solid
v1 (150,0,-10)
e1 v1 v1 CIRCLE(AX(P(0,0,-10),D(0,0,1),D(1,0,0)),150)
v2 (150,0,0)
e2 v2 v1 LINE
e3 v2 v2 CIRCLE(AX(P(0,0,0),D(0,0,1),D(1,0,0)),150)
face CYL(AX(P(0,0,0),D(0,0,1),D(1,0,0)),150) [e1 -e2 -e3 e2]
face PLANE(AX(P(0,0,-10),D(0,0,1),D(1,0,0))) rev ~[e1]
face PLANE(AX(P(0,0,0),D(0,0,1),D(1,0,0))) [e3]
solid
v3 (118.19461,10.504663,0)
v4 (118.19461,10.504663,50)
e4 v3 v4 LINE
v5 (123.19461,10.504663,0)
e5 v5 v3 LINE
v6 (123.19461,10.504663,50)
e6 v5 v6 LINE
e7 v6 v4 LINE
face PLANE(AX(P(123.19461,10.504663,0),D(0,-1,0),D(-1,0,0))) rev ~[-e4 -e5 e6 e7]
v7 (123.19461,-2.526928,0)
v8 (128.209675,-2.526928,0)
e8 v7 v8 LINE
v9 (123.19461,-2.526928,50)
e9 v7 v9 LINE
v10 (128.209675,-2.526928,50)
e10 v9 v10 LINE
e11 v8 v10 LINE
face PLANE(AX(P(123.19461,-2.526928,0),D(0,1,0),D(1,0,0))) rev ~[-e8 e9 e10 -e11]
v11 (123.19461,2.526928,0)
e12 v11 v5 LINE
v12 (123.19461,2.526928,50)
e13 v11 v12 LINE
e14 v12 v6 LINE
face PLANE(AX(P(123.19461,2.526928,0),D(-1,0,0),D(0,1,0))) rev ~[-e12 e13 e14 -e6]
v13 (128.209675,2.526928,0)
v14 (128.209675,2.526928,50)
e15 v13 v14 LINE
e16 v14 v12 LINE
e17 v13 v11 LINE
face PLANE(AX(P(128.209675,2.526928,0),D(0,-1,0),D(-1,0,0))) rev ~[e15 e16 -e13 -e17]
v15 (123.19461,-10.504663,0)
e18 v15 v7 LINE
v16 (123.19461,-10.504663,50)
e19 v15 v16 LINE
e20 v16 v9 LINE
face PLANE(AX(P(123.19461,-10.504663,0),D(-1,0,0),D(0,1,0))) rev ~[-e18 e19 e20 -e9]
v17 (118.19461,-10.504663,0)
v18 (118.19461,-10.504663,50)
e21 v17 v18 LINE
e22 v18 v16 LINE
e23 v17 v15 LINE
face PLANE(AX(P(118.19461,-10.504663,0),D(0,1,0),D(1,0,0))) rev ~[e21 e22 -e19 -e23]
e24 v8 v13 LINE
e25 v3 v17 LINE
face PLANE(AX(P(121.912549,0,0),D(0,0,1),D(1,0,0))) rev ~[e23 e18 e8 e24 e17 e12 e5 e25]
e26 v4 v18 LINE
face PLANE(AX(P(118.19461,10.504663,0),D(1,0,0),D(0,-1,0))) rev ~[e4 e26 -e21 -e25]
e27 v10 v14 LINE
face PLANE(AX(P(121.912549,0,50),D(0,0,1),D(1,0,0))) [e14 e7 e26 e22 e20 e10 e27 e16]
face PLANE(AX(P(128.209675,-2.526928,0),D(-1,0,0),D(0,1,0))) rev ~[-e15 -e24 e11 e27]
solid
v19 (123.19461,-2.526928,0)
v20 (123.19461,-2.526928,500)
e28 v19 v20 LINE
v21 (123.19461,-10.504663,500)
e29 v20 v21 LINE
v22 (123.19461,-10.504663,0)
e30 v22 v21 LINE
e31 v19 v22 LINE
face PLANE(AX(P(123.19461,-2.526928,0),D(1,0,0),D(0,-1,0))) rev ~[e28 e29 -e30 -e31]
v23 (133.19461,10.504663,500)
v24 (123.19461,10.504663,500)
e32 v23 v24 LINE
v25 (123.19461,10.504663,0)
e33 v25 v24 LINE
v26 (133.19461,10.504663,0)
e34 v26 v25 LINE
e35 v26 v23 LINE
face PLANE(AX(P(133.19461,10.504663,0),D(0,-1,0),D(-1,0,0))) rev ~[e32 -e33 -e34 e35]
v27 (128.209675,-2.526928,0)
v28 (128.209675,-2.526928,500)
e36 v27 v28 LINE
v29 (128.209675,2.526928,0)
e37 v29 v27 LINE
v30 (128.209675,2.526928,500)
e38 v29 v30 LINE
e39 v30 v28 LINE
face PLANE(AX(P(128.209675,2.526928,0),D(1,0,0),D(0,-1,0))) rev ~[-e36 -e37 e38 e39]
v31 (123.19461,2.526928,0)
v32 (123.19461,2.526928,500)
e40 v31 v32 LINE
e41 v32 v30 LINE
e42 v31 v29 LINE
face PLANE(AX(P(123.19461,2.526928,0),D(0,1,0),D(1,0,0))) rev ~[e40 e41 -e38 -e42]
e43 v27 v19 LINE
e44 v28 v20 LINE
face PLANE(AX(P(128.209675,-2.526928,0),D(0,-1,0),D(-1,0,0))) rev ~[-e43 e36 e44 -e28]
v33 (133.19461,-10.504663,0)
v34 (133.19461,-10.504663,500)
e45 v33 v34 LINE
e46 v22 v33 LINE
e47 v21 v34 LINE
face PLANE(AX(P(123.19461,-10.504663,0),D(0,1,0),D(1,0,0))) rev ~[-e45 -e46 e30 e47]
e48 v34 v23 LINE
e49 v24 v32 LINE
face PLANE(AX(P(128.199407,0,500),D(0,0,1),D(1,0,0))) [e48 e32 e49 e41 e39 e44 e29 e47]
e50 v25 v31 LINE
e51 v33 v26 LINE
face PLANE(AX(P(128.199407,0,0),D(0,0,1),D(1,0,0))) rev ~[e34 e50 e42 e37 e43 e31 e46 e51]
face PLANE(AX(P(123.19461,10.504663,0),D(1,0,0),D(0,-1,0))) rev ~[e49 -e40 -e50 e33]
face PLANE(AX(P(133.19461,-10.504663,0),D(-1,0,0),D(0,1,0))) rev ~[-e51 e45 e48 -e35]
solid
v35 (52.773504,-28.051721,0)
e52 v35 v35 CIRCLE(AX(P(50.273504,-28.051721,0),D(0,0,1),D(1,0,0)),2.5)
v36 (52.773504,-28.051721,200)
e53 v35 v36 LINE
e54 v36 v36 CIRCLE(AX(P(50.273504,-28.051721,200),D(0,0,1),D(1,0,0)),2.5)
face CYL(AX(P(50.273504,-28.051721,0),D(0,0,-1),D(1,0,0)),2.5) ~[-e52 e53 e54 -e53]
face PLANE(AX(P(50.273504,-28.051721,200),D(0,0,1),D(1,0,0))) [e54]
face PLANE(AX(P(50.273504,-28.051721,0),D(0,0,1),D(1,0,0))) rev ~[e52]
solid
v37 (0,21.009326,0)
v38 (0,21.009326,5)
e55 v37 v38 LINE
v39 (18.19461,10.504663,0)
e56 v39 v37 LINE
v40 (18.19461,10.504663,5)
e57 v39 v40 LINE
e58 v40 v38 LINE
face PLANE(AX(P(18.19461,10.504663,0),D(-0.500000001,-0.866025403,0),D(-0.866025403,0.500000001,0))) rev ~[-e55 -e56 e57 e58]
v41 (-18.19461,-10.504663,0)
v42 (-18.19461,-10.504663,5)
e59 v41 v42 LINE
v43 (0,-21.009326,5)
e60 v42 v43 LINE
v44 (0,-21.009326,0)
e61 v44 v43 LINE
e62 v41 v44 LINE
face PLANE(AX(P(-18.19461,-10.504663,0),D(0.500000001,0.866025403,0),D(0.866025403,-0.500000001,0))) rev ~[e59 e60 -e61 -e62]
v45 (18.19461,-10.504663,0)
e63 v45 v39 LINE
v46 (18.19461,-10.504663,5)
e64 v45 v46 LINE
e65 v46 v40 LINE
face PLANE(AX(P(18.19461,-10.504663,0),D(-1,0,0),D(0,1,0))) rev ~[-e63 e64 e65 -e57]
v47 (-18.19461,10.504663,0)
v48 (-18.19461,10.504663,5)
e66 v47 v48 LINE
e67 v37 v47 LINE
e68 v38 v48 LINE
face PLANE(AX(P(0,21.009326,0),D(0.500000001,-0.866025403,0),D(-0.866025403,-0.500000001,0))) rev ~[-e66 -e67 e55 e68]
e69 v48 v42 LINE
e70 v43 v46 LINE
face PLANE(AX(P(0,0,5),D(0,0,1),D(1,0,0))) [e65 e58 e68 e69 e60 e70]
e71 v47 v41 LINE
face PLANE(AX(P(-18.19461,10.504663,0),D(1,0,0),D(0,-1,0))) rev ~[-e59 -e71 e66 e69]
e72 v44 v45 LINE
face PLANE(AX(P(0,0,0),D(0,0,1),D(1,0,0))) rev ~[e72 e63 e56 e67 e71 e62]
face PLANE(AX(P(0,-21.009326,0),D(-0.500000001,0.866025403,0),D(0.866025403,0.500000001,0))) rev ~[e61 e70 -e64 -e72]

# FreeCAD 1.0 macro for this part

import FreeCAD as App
import Part
import Sketcher
Q = App.Units.Quantity


def add_polygon(sketch, points):
    """Adds a closed chain of lines whose ends are joined by coincident constraints."""
    first, n = sketch.GeometryCount, len(points)
    for a, b in zip(points, points[1:] + points[:1]):
        sketch.addGeometry(Part.LineSegment(App.Vector(*a, 0), App.Vector(*b, 0)), False)
    for i in range(n):
        sketch.addConstraint(Sketcher.Constraint("Coincident", first + i, 2, first + (i + 1) % n, 1))

doc = App.newDocument("Part")
params = doc.addObject("Spreadsheet::Sheet", "Params")
for row, (alias, value) in enumerate([
    ("sketch1_width", "10 mm"),
    ("pad1_length", "500 mm"),
    ("pad2_length", "5 mm"),
    ("sketch3_width", "5 mm"),
    ("pad3_length", "50 mm"),
    ("sketch4_diameter", "5 mm"),
    ("pad4_length", "200 mm"),
    ("sketch5_diameter", "300 mm"),
    ("pad5_length", "10 mm"),
], start=1):
    params.set(f"A{row}", alias)
    params.set(f"B{row}", "=" + value)
    params.setAlias(f"B{row}", alias)

body = doc.addObject("PartDesign::Body", "Body")

# Sketch on XY plane
sketch1 = doc.addObject("Sketcher::SketchObject", "Sketch")
body.addObject(sketch1)
sketch1.AttachmentSupport = (doc.XY_Plane, [""])
sketch1.MapMode = "FlatFace"
add_polygon(sketch1, [(133, 11), (123, 11), (123, 3), (128, 3), (128, -3), (123, -3), (123, -11), (133, -11)])  # lines 0-7
sketch1.addConstraint(Sketcher.Constraint("Horizontal", 0))
sketch1.addConstraint(Sketcher.Constraint("Vertical", 1))
sketch1.addConstraint(Sketcher.Constraint("Horizontal", 2))
sketch1.addConstraint(Sketcher.Constraint("Vertical", 3))
sketch1.addConstraint(Sketcher.Constraint("Horizontal", 4))
sketch1.addConstraint(Sketcher.Constraint("Vertical", 5))
sketch1.addConstraint(Sketcher.Constraint("Horizontal", 6))
sketch1.addConstraint(Sketcher.Constraint("Vertical", 7))
sketch1.addConstraint(Sketcher.Constraint("Symmetric", 1, 2, 4, 2, -1))
sketch1.addConstraint(Sketcher.Constraint("Equal", 1, 5))
sketch1.addConstraint(Sketcher.Constraint("DistanceX", 0, 2, 0, 1, Q("10 mm")))
sketch1.addConstraint(Sketcher.Constraint("DistanceX", 2, 1, 2, 2, Q("5.015065 mm")))
sketch1.addConstraint(Sketcher.Constraint("DistanceY", 1, 2, 1, 1, Q("7.977735 mm")))
sketch1.addConstraint(Sketcher.Constraint("DistanceY", 3, 2, 3, 1, Q("5.053856 mm")))
sketch1.addConstraint(Sketcher.Constraint("DistanceX", -1, 1, 0, 2, Q("123.19461 mm")))
sketch1.setExpression("Constraints[18]", "Params.sketch1_width")
pad1 = doc.addObject("PartDesign::Pad", "Pad")
body.addObject(pad1)
pad1.Profile = sketch1
pad1.setExpression("Length", "Params.pad1_length")
body2 = doc.addObject("PartDesign::Body", "Body001")

# Sketch on XY plane
sketch2 = doc.addObject("Sketcher::SketchObject", "Sketch001")
body2.addObject(sketch2)
sketch2.AttachmentSupport = (doc.getObject("XY_Plane001"), [""])
sketch2.MapMode = "FlatFace"
add_polygon(sketch2, [(18, -11), (18, 11), (0, 21), (-18, 11), (-18, -11), (0, -21)])  # lines 0-5
sketch2.addConstraint(Sketcher.Constraint("Vertical", 0))
sketch2.addConstraint(Sketcher.Constraint("Vertical", 3))
sketch2.addConstraint(Sketcher.Constraint("Symmetric", 0, 2, 3, 2, -1, 1))
sketch2.addConstraint(Sketcher.Constraint("Symmetric", 1, 2, 4, 2, -1, 1))
sketch2.addConstraint(Sketcher.Constraint("PointOnObject", 1, 2, -2))
sketch2.addConstraint(Sketcher.Constraint("Parallel", 2, 5))
sketch2.addConstraint(Sketcher.Constraint("Horizontal", 0, 2, 2, 2))
sketch2.addConstraint(Sketcher.Constraint("Angle", 1, Q("150 deg")))
sketch2.addConstraint(Sketcher.Constraint("DistanceY", 0, 1, 0, 2, Q("21.009326 mm")))
sketch2.addConstraint(Sketcher.Constraint("DistanceX", -1, 1, 0, 2, Q("18.19461 mm")))
pad2 = doc.addObject("PartDesign::Pad", "Pad001")
body2.addObject(pad2)
pad2.Profile = sketch2
pad2.setExpression("Length", "Params.pad2_length")
body3 = doc.addObject("PartDesign::Body", "Body002")

# Sketch on XY plane
sketch3 = doc.addObject("Sketcher::SketchObject", "Sketch002")
body3.addObject(sketch3)
sketch3.AttachmentSupport = (doc.getObject("XY_Plane002"), [""])
sketch3.MapMode = "FlatFace"
add_polygon(sketch3, [(123, 11), (118, 11), (118, -11), (123, -11), (123, -3), (128, -3), (128, 3), (123, 3)])  # lines 0-7
sketch3.addConstraint(Sketcher.Constraint("Horizontal", 0))
sketch3.addConstraint(Sketcher.Constraint("Vertical", 1))
sketch3.addConstraint(Sketcher.Constraint("Horizontal", 2))
sketch3.addConstraint(Sketcher.Constraint("Vertical", 3))
sketch3.addConstraint(Sketcher.Constraint("Horizontal", 4))
sketch3.addConstraint(Sketcher.Constraint("Vertical", 5))
sketch3.addConstraint(Sketcher.Constraint("Horizontal", 6))
sketch3.addConstraint(Sketcher.Constraint("Vertical", 7))
sketch3.addConstraint(Sketcher.Constraint("Symmetric", 3, 2, 6, 2, -1))
sketch3.addConstraint(Sketcher.Constraint("Equal", 3, 7))
sketch3.addConstraint(Sketcher.Constraint("DistanceX", 0, 2, 0, 1, Q("5 mm")))
sketch3.addConstraint(Sketcher.Constraint("DistanceX", 4, 1, 4, 2, Q("5.015065 mm")))
sketch3.addConstraint(Sketcher.Constraint("DistanceY", 1, 2, 1, 1, Q("21.009326 mm")))
sketch3.addConstraint(Sketcher.Constraint("DistanceY", 3, 1, 3, 2, Q("7.977735 mm")))
sketch3.addConstraint(Sketcher.Constraint("DistanceX", -1, 1, 0, 2, Q("118.19461 mm")))
sketch3.setExpression("Constraints[18]", "Params.sketch3_width")
pad3 = doc.addObject("PartDesign::Pad", "Pad002")
body3.addObject(pad3)
pad3.Profile = sketch3
pad3.setExpression("Length", "Params.pad3_length")
body4 = doc.addObject("PartDesign::Body", "Body003")

# Sketch on XY plane
sketch4 = doc.addObject("Sketcher::SketchObject", "Sketch003")
body4.addObject(sketch4)
sketch4.AttachmentSupport = (doc.getObject("XY_Plane003"), [""])
sketch4.MapMode = "FlatFace"
sketch4.addGeometry(Part.Circle(App.Vector(50.3, -28.1, 0), App.Vector(0, 0, 1), 2.5), False)
sketch4.addConstraint(Sketcher.Constraint("Diameter", 0, Q("5 mm")))
sketch4.addConstraint(Sketcher.Constraint("DistanceY", 0, 3, -1, 1, Q("28.051721 mm")))
sketch4.addConstraint(Sketcher.Constraint("DistanceX", -1, 1, 0, 3, Q("50.273504 mm")))
sketch4.setExpression("Constraints[0]", "Params.sketch4_diameter")
pad4 = doc.addObject("PartDesign::Pad", "Pad003")
body4.addObject(pad4)
pad4.Profile = sketch4
pad4.setExpression("Length", "Params.pad4_length")
body5 = doc.addObject("PartDesign::Body", "Body004")

# Sketch on XY plane
sketch5 = doc.addObject("Sketcher::SketchObject", "Sketch004")
body5.addObject(sketch5)
sketch5.AttachmentSupport = (doc.getObject("XY_Plane004"), [""])
sketch5.MapMode = "FlatFace"
sketch5.addGeometry(Part.Circle(App.Vector(0, 0, 0), App.Vector(0, 0, 1), 150), False)
sketch5.addConstraint(Sketcher.Constraint("Coincident", 0, 3, -1, 1))
sketch5.addConstraint(Sketcher.Constraint("Diameter", 0, Q("300 mm")))
sketch5.setExpression("Constraints[1]", "Params.sketch5_diameter")
pad5 = doc.addObject("PartDesign::Pad", "Pad004")
body5.addObject(pad5)
pad5.Profile = sketch5
pad5.setExpression("Length", "Params.pad5_length")
pad5.Reversed = True

doc.recompute()
